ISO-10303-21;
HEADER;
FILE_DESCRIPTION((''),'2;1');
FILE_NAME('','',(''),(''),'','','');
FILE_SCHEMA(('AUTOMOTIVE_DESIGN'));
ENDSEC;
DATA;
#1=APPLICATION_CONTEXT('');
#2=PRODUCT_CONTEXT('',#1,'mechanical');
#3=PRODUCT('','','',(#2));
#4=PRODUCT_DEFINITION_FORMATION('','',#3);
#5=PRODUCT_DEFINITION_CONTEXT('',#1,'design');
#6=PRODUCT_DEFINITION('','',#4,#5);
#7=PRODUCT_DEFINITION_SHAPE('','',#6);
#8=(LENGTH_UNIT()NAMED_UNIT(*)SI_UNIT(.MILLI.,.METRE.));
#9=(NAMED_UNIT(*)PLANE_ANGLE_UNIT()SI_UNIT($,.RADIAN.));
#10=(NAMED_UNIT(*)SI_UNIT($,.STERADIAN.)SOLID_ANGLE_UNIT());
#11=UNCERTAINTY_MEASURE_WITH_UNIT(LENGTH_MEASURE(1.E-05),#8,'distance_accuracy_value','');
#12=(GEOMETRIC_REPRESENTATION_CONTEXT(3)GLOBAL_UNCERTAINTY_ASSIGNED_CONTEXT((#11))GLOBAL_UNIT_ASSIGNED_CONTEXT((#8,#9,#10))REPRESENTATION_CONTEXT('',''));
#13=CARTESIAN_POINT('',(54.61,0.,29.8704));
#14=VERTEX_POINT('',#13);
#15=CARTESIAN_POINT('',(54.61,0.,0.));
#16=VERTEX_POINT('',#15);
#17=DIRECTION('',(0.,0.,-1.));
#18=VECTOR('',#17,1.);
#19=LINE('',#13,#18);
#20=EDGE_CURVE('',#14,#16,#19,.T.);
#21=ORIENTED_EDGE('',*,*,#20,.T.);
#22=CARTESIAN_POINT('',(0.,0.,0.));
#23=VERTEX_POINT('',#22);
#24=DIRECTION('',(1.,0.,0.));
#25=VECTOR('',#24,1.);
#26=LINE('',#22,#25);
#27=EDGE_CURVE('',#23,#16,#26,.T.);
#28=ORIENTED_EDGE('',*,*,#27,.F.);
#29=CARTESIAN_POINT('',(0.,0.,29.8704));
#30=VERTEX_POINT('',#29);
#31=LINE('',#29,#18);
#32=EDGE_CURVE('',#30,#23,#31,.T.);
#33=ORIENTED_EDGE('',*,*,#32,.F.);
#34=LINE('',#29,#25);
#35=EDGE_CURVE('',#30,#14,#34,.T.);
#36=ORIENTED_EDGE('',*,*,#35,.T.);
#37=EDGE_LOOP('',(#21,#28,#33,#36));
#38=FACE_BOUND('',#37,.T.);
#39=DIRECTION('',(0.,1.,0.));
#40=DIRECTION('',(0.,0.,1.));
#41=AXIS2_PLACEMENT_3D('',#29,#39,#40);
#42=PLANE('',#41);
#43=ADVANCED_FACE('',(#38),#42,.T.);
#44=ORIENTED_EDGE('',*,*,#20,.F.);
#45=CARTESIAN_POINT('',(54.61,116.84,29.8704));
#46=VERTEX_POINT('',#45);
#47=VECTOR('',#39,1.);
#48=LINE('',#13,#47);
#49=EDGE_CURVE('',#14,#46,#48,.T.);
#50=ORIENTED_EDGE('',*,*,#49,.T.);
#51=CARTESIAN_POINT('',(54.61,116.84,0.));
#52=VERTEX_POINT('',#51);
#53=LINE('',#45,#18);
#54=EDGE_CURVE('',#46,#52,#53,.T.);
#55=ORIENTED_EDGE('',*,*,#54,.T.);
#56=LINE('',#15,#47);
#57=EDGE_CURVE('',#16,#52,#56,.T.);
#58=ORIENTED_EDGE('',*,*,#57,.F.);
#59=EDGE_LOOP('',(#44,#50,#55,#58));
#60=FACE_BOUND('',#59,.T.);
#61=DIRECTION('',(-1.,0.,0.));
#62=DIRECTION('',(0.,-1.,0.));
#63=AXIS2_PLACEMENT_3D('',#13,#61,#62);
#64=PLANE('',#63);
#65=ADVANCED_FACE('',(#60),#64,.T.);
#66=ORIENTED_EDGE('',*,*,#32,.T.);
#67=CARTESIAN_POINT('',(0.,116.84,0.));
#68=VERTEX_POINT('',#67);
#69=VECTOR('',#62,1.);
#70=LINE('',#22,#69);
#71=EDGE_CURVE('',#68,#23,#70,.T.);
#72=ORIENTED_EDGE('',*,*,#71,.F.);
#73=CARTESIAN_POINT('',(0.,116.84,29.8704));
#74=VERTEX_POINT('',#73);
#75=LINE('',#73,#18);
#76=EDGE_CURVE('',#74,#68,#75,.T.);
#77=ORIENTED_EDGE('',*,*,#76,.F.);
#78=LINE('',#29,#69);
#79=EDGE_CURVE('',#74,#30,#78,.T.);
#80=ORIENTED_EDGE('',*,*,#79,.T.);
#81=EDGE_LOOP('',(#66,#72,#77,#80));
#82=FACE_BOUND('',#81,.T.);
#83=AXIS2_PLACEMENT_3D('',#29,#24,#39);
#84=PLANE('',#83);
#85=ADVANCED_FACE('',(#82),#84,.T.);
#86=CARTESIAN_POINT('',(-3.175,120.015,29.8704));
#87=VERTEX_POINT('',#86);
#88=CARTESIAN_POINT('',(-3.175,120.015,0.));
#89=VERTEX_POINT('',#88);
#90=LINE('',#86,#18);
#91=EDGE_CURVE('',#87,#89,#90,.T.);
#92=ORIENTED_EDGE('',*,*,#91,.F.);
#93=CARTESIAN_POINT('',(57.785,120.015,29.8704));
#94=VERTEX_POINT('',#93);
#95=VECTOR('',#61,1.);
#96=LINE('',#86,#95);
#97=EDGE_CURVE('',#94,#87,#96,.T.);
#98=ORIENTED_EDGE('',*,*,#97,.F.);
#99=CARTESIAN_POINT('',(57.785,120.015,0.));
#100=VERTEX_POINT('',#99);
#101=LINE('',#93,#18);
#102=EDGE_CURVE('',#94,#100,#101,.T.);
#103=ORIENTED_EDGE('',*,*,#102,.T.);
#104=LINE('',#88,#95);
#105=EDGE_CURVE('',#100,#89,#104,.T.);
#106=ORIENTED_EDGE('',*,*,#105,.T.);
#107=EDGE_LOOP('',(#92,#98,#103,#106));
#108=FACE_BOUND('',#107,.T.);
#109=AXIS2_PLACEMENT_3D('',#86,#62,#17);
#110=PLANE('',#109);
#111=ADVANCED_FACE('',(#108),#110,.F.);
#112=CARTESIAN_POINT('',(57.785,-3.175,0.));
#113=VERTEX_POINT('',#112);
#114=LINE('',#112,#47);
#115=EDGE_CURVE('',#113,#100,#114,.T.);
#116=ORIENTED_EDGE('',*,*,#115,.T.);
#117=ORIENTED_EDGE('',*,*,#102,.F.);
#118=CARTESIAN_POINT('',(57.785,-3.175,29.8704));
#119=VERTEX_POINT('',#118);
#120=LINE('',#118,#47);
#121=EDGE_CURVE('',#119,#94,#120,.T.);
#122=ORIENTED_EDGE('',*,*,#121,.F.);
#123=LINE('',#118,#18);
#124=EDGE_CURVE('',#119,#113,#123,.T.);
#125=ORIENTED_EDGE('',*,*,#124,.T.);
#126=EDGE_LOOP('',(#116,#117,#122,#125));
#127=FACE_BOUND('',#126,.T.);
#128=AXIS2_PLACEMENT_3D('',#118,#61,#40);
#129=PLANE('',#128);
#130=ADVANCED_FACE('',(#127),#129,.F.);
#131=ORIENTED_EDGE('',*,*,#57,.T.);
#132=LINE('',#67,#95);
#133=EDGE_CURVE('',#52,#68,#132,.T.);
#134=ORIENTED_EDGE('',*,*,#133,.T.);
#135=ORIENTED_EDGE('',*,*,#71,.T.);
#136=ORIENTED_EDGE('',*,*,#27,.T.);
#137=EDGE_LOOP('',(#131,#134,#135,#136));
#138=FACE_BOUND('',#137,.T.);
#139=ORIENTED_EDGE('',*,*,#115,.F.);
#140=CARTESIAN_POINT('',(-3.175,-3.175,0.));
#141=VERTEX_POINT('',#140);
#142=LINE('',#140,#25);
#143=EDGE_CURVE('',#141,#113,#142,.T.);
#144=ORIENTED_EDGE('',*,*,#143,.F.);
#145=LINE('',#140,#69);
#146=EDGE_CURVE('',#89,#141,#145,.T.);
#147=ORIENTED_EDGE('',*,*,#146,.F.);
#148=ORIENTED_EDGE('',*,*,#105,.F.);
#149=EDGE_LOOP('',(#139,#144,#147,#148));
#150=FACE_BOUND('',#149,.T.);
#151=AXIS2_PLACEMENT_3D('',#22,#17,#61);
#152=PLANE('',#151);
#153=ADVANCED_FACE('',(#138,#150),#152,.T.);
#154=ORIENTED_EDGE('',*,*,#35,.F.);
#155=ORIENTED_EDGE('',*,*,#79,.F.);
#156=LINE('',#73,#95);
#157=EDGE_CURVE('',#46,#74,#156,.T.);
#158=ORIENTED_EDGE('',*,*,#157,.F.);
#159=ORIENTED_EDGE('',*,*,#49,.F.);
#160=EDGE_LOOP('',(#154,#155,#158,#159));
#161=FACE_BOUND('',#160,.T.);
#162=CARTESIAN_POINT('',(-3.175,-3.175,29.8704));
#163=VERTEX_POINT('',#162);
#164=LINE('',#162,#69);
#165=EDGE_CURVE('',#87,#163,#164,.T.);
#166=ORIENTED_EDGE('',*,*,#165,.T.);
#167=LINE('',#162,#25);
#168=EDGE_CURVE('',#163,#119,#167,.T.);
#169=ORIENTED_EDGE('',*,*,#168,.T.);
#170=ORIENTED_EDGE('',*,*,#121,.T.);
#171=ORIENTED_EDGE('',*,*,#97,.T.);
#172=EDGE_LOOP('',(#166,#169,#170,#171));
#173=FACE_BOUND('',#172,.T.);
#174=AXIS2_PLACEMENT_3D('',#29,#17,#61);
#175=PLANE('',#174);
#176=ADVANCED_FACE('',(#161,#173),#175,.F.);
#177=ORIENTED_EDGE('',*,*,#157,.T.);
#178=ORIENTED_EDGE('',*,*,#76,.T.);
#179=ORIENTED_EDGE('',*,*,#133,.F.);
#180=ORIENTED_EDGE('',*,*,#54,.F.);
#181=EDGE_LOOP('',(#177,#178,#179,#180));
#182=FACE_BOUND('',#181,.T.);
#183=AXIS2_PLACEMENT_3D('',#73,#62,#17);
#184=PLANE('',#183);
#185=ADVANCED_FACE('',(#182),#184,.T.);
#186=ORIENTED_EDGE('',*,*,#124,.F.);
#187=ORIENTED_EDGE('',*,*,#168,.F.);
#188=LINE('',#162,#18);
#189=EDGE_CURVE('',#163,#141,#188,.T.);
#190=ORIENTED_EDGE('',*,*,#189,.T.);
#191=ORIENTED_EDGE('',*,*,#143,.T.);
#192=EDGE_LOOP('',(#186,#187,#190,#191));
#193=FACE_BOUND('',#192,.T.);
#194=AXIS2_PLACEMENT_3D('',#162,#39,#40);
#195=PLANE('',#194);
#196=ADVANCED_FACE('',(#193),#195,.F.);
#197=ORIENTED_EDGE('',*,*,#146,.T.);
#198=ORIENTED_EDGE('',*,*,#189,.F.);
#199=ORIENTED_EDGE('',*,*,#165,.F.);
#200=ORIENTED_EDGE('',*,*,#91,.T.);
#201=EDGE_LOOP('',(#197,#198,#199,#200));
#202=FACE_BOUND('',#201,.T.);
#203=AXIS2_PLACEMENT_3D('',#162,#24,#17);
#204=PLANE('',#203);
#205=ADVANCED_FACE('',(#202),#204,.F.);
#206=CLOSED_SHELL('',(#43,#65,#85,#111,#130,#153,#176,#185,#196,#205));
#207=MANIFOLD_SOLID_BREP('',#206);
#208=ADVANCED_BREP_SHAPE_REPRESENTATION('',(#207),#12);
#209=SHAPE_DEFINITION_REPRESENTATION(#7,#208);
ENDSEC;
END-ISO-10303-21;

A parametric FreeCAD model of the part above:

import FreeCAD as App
import Part
import Sketcher
Q = App.Units.Quantity


def add_polygon(sketch, points):
    """Adds a closed chain of lines whose ends are joined by coincident constraints."""
    first, n = sketch.GeometryCount, len(points)
    for a, b in zip(points, points[1:] + points[:1]):
        sketch.addGeometry(Part.LineSegment(App.Vector(*a, 0), App.Vector(*b, 0)), False)
    for i in range(n):
        sketch.addConstraint(Sketcher.Constraint("Coincident", first + i, 2, first + (i + 1) % n, 1))

doc = App.newDocument("Part")
body = doc.addObject("PartDesign::Body", "Body")

sketch1 = body.newObject("Sketcher::SketchObject", "Sketch")
sketch1.AttachmentSupport = (doc.getObject("XY_Plane"), [""])
sketch1.MapMode = "FlatFace"
add_polygon(sketch1, [(-3, 120), (-3, -3), (58, -3), (58, 120)])
add_polygon(sketch1, [(55, 0), (0, 0), (0, 117), (55, 117)])
sketch1.addConstraint([
    Sketcher.Constraint("Vertical", 0),
    Sketcher.Constraint("Horizontal", 1),
    Sketcher.Constraint("Vertical", 2),
    Sketcher.Constraint("Horizontal", 3),
    Sketcher.Constraint("Horizontal", 4),
    Sketcher.Constraint("Vertical", 5),
    Sketcher.Constraint("Horizontal", 6),
    Sketcher.Constraint("Vertical", 7),
    Sketcher.Constraint("Coincident", 4, 2, -1, 1),
    Sketcher.Constraint("DistanceX", 1, 1, 1, 2, Q("2.4 in")),
    Sketcher.Constraint("DistanceY", 5, 1, 5, 2, Q("4.6 in")),
    Sketcher.Constraint("DistanceX", 4, 2, 4, 1, Q("2.15 in")),
    Sketcher.Constraint("DistanceY", 0, 2, 0, 1, Q("4.85 in")),
    Sketcher.Constraint("DistanceX", 0, 2, -1, 1, Q("0.125 in")),
    Sketcher.Constraint("DistanceY", 0, 2, -1, 1, Q("0.125 in")),
])
pad1 = body.newObject("PartDesign::Pad", "Pad")
pad1.Profile = sketch1
pad1.Length = Q("1.176 in")

doc.recompute()
